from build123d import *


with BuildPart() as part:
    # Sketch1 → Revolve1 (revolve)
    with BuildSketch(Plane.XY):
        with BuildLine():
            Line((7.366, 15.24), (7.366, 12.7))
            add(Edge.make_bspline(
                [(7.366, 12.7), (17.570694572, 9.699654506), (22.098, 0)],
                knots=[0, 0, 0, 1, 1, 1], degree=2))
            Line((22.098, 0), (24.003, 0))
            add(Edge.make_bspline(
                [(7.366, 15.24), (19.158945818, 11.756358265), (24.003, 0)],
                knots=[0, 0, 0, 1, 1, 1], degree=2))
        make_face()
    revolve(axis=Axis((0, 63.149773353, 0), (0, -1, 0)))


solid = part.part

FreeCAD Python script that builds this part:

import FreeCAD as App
import Part
import Sketcher
from FreeCAD import Vector

doc = App.newDocument("Part")
body = doc.addObject("PartDesign::Body", "Body")

sketch1 = doc.addObject("Sketcher::SketchObject", "Sketch")
body.addObject(sketch1)
sketch1.AttachmentSupport = (doc.XY_Plane, [""])
sketch1.MapMode = "FlatFace"
sketch1.addGeometry([
    Part.LineSegment(Vector(7.366, 15.24, 0), Vector(7.366, 12.7, 0)),
    Part.BSplineCurve([Vector(7.366, 12.7, 0), Vector(17.570695, 9.699655, 0), Vector(22.098, 0, 0)], [3, 3], [0, 1], False, 2, [1, 1, 1], False),
    Part.LineSegment(Vector(22.098, 0, 0), Vector(24.003, 0, 0)),
    Part.BSplineCurve([Vector(7.366, 15.24, 0), Vector(19.158946, 11.756358, 0), Vector(24.003, 0, 0)], [3, 3], [0, 1], False, 2, [1, 1, 1], False),
], False)
sketch1.addConstraint([
    Sketcher.Constraint("Block", 1),
    Sketcher.Constraint("Block", 3),
    Sketcher.Constraint("Coincident", 0, 2, 1, 1),
    Sketcher.Constraint("Coincident", 1, 2, 2, 1),
    Sketcher.Constraint("Coincident", 2, 2, 3, 2),
    Sketcher.Constraint("Coincident", 3, 1, 0, 1),
])
revolution = doc.addObject("PartDesign::Revolution", "Revolution")
body.addObject(revolution)
revolution.Profile = sketch1
revolution.ReferenceAxis = (sketch1, ["V_Axis"])
revolution.Angle = 360

doc.recompute()
